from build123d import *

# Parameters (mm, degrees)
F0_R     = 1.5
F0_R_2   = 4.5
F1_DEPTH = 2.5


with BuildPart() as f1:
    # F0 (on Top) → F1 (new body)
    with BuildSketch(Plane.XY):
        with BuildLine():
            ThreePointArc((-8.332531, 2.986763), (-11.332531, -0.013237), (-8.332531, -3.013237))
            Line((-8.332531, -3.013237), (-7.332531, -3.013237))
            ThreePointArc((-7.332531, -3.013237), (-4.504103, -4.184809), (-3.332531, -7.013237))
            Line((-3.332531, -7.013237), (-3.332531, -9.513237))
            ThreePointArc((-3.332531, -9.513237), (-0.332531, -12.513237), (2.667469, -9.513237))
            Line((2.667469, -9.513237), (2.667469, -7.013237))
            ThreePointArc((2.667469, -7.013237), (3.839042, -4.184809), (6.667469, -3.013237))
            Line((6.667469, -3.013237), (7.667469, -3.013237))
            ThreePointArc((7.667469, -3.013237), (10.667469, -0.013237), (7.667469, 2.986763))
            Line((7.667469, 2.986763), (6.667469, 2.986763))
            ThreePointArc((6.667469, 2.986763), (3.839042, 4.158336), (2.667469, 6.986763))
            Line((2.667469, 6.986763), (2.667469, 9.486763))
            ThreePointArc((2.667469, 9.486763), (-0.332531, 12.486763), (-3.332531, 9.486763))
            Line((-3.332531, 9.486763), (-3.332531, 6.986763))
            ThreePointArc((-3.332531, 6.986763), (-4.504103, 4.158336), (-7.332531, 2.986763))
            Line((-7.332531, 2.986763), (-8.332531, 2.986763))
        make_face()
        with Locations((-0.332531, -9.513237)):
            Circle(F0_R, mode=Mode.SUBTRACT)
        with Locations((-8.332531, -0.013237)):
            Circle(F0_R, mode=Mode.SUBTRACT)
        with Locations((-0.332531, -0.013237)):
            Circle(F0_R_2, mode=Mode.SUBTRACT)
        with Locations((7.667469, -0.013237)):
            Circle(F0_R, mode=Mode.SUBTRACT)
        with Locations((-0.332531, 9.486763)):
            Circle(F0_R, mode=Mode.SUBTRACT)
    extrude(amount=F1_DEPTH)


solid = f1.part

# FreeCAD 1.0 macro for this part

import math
import FreeCAD as App
import Part
import Sketcher

V = App.Vector
Q = App.Units.Quantity

doc = App.newDocument("Part")
body = doc.addObject("PartDesign::Body", "Body")

sketch1 = doc.addObject("Sketcher::SketchObject", "Sketch")
body.addObject(sketch1)
sketch1.AttachmentSupport = (doc.XY_Plane, [""])
sketch1.MapMode = "FlatFace"
sketch1.addGeometry([
    Part.ArcOfCircle(Part.Circle(V(-8.3, 0, 0), V(0, 0, 1), 3), math.radians(90), math.radians(270)),
    Part.LineSegment(V(-8.3, -3, 0), V(-7.3, -3, 0)),
    Part.ArcOfCircle(Part.Circle(V(-7.3, -7, 0), V(0, 0, 1), 4), math.radians(0), math.radians(90)),
    Part.LineSegment(V(-3.3, -7, 0), V(-3.3, -9.5, 0)),
    Part.ArcOfCircle(Part.Circle(V(-0.3, -9.5, 0), V(0, 0, 1), 3), math.radians(180), math.radians(360)),
    Part.LineSegment(V(2.7, -9.5, 0), V(2.7, -7, 0)),
    Part.ArcOfCircle(Part.Circle(V(6.7, -7, 0), V(0, 0, 1), 4), math.radians(90), math.radians(180)),
    Part.LineSegment(V(6.7, -3, 0), V(7.7, -3, 0)),
    Part.ArcOfCircle(Part.Circle(V(7.7, 0, 0), V(0, 0, 1), 3), math.radians(-90), math.radians(90)),
    Part.LineSegment(V(7.7, 3, 0), V(6.7, 3, 0)),
    Part.ArcOfCircle(Part.Circle(V(6.7, 7, 0), V(0, 0, 1), 4), math.radians(-180), math.radians(-90)),
    Part.LineSegment(V(2.7, 7, 0), V(2.7, 9.5, 0)),
    Part.ArcOfCircle(Part.Circle(V(-0.3, 9.5, 0), V(0, 0, 1), 3), math.radians(0), math.radians(180)),
    Part.LineSegment(V(-3.3, 9.5, 0), V(-3.3, 7, 0)),
    Part.ArcOfCircle(Part.Circle(V(-7.3, 7, 0), V(0, 0, 1), 4), math.radians(-90), math.radians(0)),
    Part.LineSegment(V(-7.3, 3, 0), V(-8.3, 3, 0)),
    Part.Circle(V(-0.3, -9.5, 0), V(0, 0, 1), 1.5),
    Part.Circle(V(-8.3, 0, 0), V(0, 0, 1), 1.5),
    Part.Circle(V(-0.3, 0, 0), V(0, 0, 1), 4.5),
    Part.Circle(V(7.7, 0, 0), V(0, 0, 1), 1.5),
    Part.Circle(V(-0.3, 9.5, 0), V(0, 0, 1), 1.5),
], False)
sketch1.addConstraint([
    Sketcher.Constraint("Tangent", 0, 2, 1, 1),
    Sketcher.Constraint("Tangent", 1, 2, 2, 2),
    Sketcher.Constraint("Tangent", 2, 1, 3, 1),
    Sketcher.Constraint("Tangent", 3, 2, 4, 1),
    Sketcher.Constraint("Tangent", 4, 2, 5, 1),
    Sketcher.Constraint("Tangent", 5, 2, 6, 2),
    Sketcher.Constraint("Tangent", 6, 1, 7, 1),
    Sketcher.Constraint("Tangent", 7, 2, 8, 1),
    Sketcher.Constraint("Tangent", 8, 2, 9, 1),
    Sketcher.Constraint("Tangent", 9, 2, 10, 2),
    Sketcher.Constraint("Tangent", 10, 1, 11, 1),
    Sketcher.Constraint("Tangent", 11, 2, 12, 1),
    Sketcher.Constraint("Tangent", 12, 2, 13, 1),
    Sketcher.Constraint("Tangent", 13, 2, 14, 2),
    Sketcher.Constraint("Tangent", 14, 1, 15, 1),
    Sketcher.Constraint("Tangent", 15, 2, 0, 1),
    Sketcher.Constraint("Horizontal", 1),
    Sketcher.Constraint("Vertical", 3),
    Sketcher.Constraint("Vertical", 5),
    Sketcher.Constraint("Horizontal", 7),
    Sketcher.Constraint("Horizontal", 9),
    Sketcher.Constraint("Vertical", 11),
    Sketcher.Constraint("Vertical", 13),
    Sketcher.Constraint("Horizontal", 15),
    Sketcher.Constraint("Coincident", 16, 3, 4, 3),
    Sketcher.Constraint("Coincident", 17, 3, 0, 3),
    Sketcher.Constraint("Coincident", 19, 3, 8, 3),
    Sketcher.Constraint("Coincident", 20, 3, 12, 3),
    Sketcher.Constraint("Equal", 0, 4),
    Sketcher.Constraint("Equal", 2, 6),
    Sketcher.Constraint("Equal", 4, 8),
    Sketcher.Constraint("Equal", 6, 10),
    Sketcher.Constraint("Equal", 8, 12),
    Sketcher.Constraint("Equal", 10, 14),
    Sketcher.Constraint("Equal", 16, 17),
    Sketcher.Constraint("Equal", 17, 19),
    Sketcher.Constraint("Equal", 19, 20),
    Sketcher.Constraint("Horizontal", 2, 3, 6, 3),
    Sketcher.Constraint("Horizontal", 17, 3, 18, 3),
    Sketcher.Constraint("Vertical", 6, 3, 10, 3),
    Sketcher.Constraint("Vertical", 16, 3, 18, 3),
    Sketcher.Constraint("Equal", 1, 7),
    Sketcher.Constraint("Equal", 5, 11),
    Sketcher.Constraint("Diameter", 16, Q("3 mm")),
    Sketcher.Constraint("Diameter", 18, Q("9 mm")),
    Sketcher.Constraint("Radius", 0, Q("3 mm")),
    Sketcher.Constraint("Radius", 6, Q("3.999999 mm")),
    Sketcher.Constraint("DistanceX", 1, 1, 1, 2, Q("1 mm")),
    Sketcher.Constraint("DistanceY", 3, 2, 3, 1, Q("2.5 mm")),
    Sketcher.Constraint("DistanceX", 0, 3, -1, 1, Q("8.332531 mm")),
    Sketcher.Constraint("DistanceY", -1, 1, 14, 3, Q("6.986762 mm")),
])
pad1 = doc.addObject("PartDesign::Pad", "Pad")
body.addObject(pad1)
pad1.Profile = sketch1
pad1.Length = 2.5

doc.recompute()
